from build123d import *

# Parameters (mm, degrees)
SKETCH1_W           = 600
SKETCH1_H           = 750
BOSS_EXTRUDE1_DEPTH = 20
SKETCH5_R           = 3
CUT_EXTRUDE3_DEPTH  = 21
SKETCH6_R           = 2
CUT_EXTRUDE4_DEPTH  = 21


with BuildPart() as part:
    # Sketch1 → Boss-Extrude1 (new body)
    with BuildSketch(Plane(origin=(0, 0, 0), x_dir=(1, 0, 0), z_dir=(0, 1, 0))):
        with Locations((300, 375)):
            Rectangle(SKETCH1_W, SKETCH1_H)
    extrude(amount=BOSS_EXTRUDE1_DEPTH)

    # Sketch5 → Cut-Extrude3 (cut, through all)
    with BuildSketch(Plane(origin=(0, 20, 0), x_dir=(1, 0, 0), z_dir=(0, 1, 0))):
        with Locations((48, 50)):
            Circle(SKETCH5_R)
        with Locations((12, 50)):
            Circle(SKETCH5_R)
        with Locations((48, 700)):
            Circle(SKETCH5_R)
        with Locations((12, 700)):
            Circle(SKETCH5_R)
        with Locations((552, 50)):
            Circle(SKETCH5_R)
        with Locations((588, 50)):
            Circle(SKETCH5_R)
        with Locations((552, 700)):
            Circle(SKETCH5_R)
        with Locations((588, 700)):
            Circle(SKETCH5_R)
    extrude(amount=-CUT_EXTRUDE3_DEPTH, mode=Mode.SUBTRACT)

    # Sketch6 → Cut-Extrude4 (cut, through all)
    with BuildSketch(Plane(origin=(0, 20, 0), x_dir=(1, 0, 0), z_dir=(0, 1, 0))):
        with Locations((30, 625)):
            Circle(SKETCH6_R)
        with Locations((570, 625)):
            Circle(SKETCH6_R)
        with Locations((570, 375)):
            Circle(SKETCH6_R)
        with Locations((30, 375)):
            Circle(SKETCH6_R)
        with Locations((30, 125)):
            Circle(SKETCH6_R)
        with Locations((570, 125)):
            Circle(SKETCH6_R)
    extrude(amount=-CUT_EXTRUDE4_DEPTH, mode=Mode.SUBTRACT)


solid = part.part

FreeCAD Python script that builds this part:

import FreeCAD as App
import Part
import Sketcher
from FreeCAD import Vector

doc = App.newDocument("Part")
body = doc.addObject("PartDesign::Body", "Body")

# Sketch on XZ plane
sketch1 = body.newObject("Sketcher::SketchObject", "Sketch")
sketch1.AttachmentSupport = (doc.getObject("XZ_Plane"), [""])
sketch1.MapMode = "FlatFace"
sketch1.addGeometry(Part.LineSegment(Vector(0, -750, 0), Vector(0, 0, 0)), False)
sketch1.addGeometry(Part.LineSegment(Vector(0, 0, 0), Vector(600, 0, 0)), False)
sketch1.addGeometry(Part.LineSegment(Vector(600, 0, 0), Vector(600, -750, 0)), False)
sketch1.addGeometry(Part.LineSegment(Vector(600, -750, 0), Vector(0, -750, 0)), False)
sketch1.addConstraint(Sketcher.Constraint("Coincident", 0, 2, 1, 1))
sketch1.addConstraint(Sketcher.Constraint("Coincident", 1, 2, 2, 1))
sketch1.addConstraint(Sketcher.Constraint("Coincident", 2, 2, 3, 1))
sketch1.addConstraint(Sketcher.Constraint("Coincident", 3, 2, 0, 1))
sketch1.addConstraint(Sketcher.Constraint("Vertical", 0))
sketch1.addConstraint(Sketcher.Constraint("Horizontal", 1))
sketch1.addConstraint(Sketcher.Constraint("Vertical", 2))
sketch1.addConstraint(Sketcher.Constraint("Horizontal", 3))
sketch1.addConstraint(Sketcher.Constraint("Coincident", 0, 2, -1, 1))
sketch1.addConstraint(Sketcher.Constraint("DistanceX", 1, 1, 1, 2, 600.0))
sketch1.addConstraint(Sketcher.Constraint("DistanceY", 0, 1, 0, 2, 750.0))
pad1 = body.newObject("PartDesign::Pad", "Pad")
pad1.Profile = sketch1
pad1.Length = 20
pad1.Reversed = True

# Sketch on XZ plane
sketch2 = body.newObject("Sketcher::SketchObject", "Sketch001")
sketch2.AttachmentSupport = (doc.getObject("XZ_Plane"), [""])
sketch2.MapMode = "FlatFace"
sketch2.AttachmentOffset = App.Placement(Vector(0, 0, -20), App.Rotation())
sketch2.addGeometry(Part.Circle(Vector(48, -50, 0), Vector(0, 0, 1), 3), False)
sketch2.addGeometry(Part.Circle(Vector(12, -50, 0), Vector(0, 0, 1), 3), False)
sketch2.addGeometry(Part.Circle(Vector(48, -700, 0), Vector(0, 0, 1), 3), False)
sketch2.addGeometry(Part.Circle(Vector(12, -700, 0), Vector(0, 0, 1), 3), False)
sketch2.addGeometry(Part.Circle(Vector(552, -50, 0), Vector(0, 0, 1), 3), False)
sketch2.addGeometry(Part.Circle(Vector(588, -50, 0), Vector(0, 0, 1), 3), False)
sketch2.addGeometry(Part.Circle(Vector(552, -700, 0), Vector(0, 0, 1), 3), False)
sketch2.addGeometry(Part.Circle(Vector(588, -700, 0), Vector(0, 0, 1), 3), False)
sketch2.addConstraint(Sketcher.Constraint("Equal", 0, 1))
sketch2.addConstraint(Sketcher.Constraint("Equal", 1, 2))
sketch2.addConstraint(Sketcher.Constraint("Equal", 2, 3))
sketch2.addConstraint(Sketcher.Constraint("Equal", 3, 4))
sketch2.addConstraint(Sketcher.Constraint("Equal", 4, 5))
sketch2.addConstraint(Sketcher.Constraint("Equal", 5, 6))
sketch2.addConstraint(Sketcher.Constraint("Equal", 6, 7))
sketch2.addConstraint(Sketcher.Constraint("Horizontal", 0, 3, 1, 3))
sketch2.addConstraint(Sketcher.Constraint("Horizontal", 2, 3, 3, 3))
sketch2.addConstraint(Sketcher.Constraint("Horizontal", 1, 3, 4, 3))
sketch2.addConstraint(Sketcher.Constraint("Horizontal", 4, 3, 5, 3))
sketch2.addConstraint(Sketcher.Constraint("Horizontal", 3, 3, 6, 3))
sketch2.addConstraint(Sketcher.Constraint("Horizontal", 6, 3, 7, 3))
sketch2.addConstraint(Sketcher.Constraint("Vertical", 0, 3, 2, 3))
sketch2.addConstraint(Sketcher.Constraint("Vertical", 1, 3, 3, 3))
sketch2.addConstraint(Sketcher.Constraint("Vertical", 4, 3, 6, 3))
sketch2.addConstraint(Sketcher.Constraint("Vertical", 5, 3, 7, 3))
sketch2.addConstraint(Sketcher.Constraint("Diameter", 0, 6.0))
sketch2.addConstraint(Sketcher.Constraint("DistanceX", -1, 1, 0, 3, 48.0))
sketch2.addConstraint(Sketcher.Constraint("DistanceY", 0, 3, -1, 1, 50.0))
sketch2.addConstraint(Sketcher.Constraint("DistanceX", -1, 1, 1, 3, 12.0))
sketch2.addConstraint(Sketcher.Constraint("DistanceY", 2, 3, -1, 1, 700.0))
sketch2.addConstraint(Sketcher.Constraint("DistanceX", -1, 1, 4, 3, 552.0))
sketch2.addConstraint(Sketcher.Constraint("DistanceX", -1, 1, 5, 3, 588.0))
pocket1 = body.newObject("PartDesign::Pocket", "Pocket")
pocket1.Profile = sketch2
pocket1.Type = "ThroughAll"
pocket1.Reversed = True

# Sketch on XZ plane
sketch3 = body.newObject("Sketcher::SketchObject", "Sketch002")
sketch3.AttachmentSupport = (doc.getObject("XZ_Plane"), [""])
sketch3.MapMode = "FlatFace"
sketch3.AttachmentOffset = App.Placement(Vector(0, 0, -20), App.Rotation())
sketch3.addGeometry(Part.Circle(Vector(30, -625, 0), Vector(0, 0, 1), 2), False)
sketch3.addGeometry(Part.Circle(Vector(570, -625, 0), Vector(0, 0, 1), 2), False)
sketch3.addGeometry(Part.Circle(Vector(570, -375, 0), Vector(0, 0, 1), 2), False)
sketch3.addGeometry(Part.Circle(Vector(30, -375, 0), Vector(0, 0, 1), 2), False)
sketch3.addGeometry(Part.Circle(Vector(30, -125, 0), Vector(0, 0, 1), 2), False)
sketch3.addGeometry(Part.Circle(Vector(570, -125, 0), Vector(0, 0, 1), 2), False)
sketch3.addConstraint(Sketcher.Constraint("Equal", 0, 1))
sketch3.addConstraint(Sketcher.Constraint("Equal", 1, 2))
sketch3.addConstraint(Sketcher.Constraint("Equal", 2, 3))
sketch3.addConstraint(Sketcher.Constraint("Equal", 3, 4))
sketch3.addConstraint(Sketcher.Constraint("Equal", 4, 5))
sketch3.addConstraint(Sketcher.Constraint("Horizontal", 0, 3, 1, 3))
sketch3.addConstraint(Sketcher.Constraint("Horizontal", 2, 3, 3, 3))
sketch3.addConstraint(Sketcher.Constraint("Horizontal", 4, 3, 5, 3))
sketch3.addConstraint(Sketcher.Constraint("Vertical", 1, 3, 2, 3))
sketch3.addConstraint(Sketcher.Constraint("Vertical", 0, 3, 3, 3))
sketch3.addConstraint(Sketcher.Constraint("Vertical", 3, 3, 4, 3))
sketch3.addConstraint(Sketcher.Constraint("Vertical", 2, 3, 5, 3))
sketch3.addConstraint(Sketcher.Constraint("Diameter", 0, 4.0))
sketch3.addConstraint(Sketcher.Constraint("DistanceX", -1, 1, 0, 3, 30.0))
sketch3.addConstraint(Sketcher.Constraint("DistanceY", 0, 3, -1, 1, 625.0))
sketch3.addConstraint(Sketcher.Constraint("DistanceX", -1, 1, 1, 3, 570.0))
sketch3.addConstraint(Sketcher.Constraint("DistanceY", 2, 3, -1, 1, 375.0))
sketch3.addConstraint(Sketcher.Constraint("DistanceY", 4, 3, -1, 1, 125.0))
pocket2 = body.newObject("PartDesign::Pocket", "Pocket001")
pocket2.Profile = sketch3
pocket2.Type = "ThroughAll"
pocket2.Reversed = True

doc.recompute()
